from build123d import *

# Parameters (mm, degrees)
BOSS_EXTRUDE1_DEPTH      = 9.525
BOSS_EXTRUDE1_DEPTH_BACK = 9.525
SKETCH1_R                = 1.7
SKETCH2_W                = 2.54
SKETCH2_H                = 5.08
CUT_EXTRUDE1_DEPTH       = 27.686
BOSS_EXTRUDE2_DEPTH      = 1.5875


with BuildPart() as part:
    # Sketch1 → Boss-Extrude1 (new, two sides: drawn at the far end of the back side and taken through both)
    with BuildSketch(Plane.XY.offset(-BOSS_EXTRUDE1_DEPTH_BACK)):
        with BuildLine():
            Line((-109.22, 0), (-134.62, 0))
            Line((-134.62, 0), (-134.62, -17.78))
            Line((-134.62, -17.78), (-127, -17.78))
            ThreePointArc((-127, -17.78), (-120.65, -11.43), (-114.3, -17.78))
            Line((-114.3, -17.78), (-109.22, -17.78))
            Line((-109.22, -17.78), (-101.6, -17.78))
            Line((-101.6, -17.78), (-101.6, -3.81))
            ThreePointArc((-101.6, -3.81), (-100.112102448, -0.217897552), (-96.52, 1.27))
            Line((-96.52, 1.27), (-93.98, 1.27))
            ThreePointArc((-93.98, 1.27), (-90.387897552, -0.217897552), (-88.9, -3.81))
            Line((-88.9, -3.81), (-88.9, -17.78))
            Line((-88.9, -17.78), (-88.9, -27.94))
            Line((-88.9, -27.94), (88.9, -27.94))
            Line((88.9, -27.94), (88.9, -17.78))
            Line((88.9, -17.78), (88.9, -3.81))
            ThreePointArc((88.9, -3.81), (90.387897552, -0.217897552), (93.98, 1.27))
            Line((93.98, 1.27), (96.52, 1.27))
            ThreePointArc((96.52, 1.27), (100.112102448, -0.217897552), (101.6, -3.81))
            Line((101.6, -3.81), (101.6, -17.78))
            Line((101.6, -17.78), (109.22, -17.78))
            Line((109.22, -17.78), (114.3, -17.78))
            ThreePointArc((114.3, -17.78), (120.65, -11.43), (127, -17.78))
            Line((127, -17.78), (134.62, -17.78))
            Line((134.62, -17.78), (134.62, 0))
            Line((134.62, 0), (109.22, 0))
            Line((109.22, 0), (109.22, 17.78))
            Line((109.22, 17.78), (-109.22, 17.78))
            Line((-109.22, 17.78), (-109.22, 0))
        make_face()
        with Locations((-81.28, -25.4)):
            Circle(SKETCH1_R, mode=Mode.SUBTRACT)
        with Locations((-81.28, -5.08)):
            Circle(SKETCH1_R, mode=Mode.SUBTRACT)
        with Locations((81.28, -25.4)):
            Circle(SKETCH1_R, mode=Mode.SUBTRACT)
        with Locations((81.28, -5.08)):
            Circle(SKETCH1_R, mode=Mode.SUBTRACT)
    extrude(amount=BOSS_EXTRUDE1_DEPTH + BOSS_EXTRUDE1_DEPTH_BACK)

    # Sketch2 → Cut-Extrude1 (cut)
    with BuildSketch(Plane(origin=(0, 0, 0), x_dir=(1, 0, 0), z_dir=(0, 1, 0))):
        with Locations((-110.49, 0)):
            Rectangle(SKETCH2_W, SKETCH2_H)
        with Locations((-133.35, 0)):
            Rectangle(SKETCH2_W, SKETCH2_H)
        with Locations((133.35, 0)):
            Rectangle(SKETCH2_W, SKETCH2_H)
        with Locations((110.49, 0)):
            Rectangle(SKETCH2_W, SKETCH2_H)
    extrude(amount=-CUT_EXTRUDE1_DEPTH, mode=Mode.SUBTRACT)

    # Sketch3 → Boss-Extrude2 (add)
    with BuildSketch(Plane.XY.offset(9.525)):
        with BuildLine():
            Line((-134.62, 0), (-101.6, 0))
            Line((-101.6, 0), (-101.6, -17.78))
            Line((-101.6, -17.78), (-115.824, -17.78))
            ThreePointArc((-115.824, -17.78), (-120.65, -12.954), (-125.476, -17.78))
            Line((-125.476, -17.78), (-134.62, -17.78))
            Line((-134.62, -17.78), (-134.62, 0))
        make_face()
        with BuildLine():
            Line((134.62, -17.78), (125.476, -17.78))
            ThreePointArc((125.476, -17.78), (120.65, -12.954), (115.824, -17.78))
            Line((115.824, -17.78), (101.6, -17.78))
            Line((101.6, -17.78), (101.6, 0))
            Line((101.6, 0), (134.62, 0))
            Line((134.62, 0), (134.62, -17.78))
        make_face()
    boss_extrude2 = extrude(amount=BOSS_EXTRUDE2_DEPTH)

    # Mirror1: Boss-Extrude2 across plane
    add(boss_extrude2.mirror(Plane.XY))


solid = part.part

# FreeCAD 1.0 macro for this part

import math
import FreeCAD as App
import Part
import Sketcher
Q = App.Units.Quantity

doc = App.newDocument("Part")
body = doc.addObject("PartDesign::Body", "Body")

# Sketch on XY plane
sketch1 = body.newObject("Sketcher::SketchObject", "Sketch")
sketch1.AttachmentSupport = (doc.getObject("XY_Plane"), [""])
sketch1.MapMode = "FlatFace"
sketch1.addGeometry(Part.LineSegment(App.Vector(-109.2, 0, 0), App.Vector(-134.6, 0, 0)), False)
sketch1.addGeometry(Part.LineSegment(App.Vector(-134.6, 0, 0), App.Vector(-134.6, -17.8, 0)), False)
sketch1.addGeometry(Part.LineSegment(App.Vector(-134.6, -17.8, 0), App.Vector(-127, -17.8, 0)), False)
sketch1.addGeometry(Part.ArcOfCircle(Part.Circle(App.Vector(-120.7, -17.8, 0), App.Vector(0, 0, 1), 6.3), math.radians(0), math.radians(180)), False)
sketch1.addGeometry(Part.LineSegment(App.Vector(-114.3, -17.8, 0), App.Vector(-101.6, -17.8, 0)), False)
sketch1.addGeometry(Part.LineSegment(App.Vector(-101.6, -17.8, 0), App.Vector(-101.6, -3.8, 0)), False)
sketch1.addGeometry(Part.ArcOfCircle(Part.Circle(App.Vector(-96.5, -3.8, 0), App.Vector(0, 0, 1), 5.1), math.radians(90), math.radians(180)), False)
sketch1.addGeometry(Part.LineSegment(App.Vector(-96.5, 1.3, 0), App.Vector(-94, 1.3, 0)), False)
sketch1.addGeometry(Part.ArcOfCircle(Part.Circle(App.Vector(-94, -3.8, 0), App.Vector(0, 0, 1), 5.1), math.radians(0), math.radians(90)), False)
sketch1.addGeometry(Part.LineSegment(App.Vector(-88.9, -3.8, 0), App.Vector(-88.9, -27.9, 0)), False)
sketch1.addGeometry(Part.LineSegment(App.Vector(-88.9, -27.9, 0), App.Vector(88.9, -27.9, 0)), False)
sketch1.addGeometry(Part.LineSegment(App.Vector(88.9, -27.9, 0), App.Vector(88.9, -3.8, 0)), False)
sketch1.addGeometry(Part.ArcOfCircle(Part.Circle(App.Vector(94, -3.8, 0), App.Vector(0, 0, 1), 5.1), math.radians(90), math.radians(180)), False)
sketch1.addGeometry(Part.LineSegment(App.Vector(94, 1.3, 0), App.Vector(96.5, 1.3, 0)), False)
sketch1.addGeometry(Part.ArcOfCircle(Part.Circle(App.Vector(96.5, -3.8, 0), App.Vector(0, 0, 1), 5.1), math.radians(0), math.radians(90)), False)
sketch1.addGeometry(Part.LineSegment(App.Vector(101.6, -3.8, 0), App.Vector(101.6, -17.8, 0)), False)
sketch1.addGeometry(Part.LineSegment(App.Vector(101.6, -17.8, 0), App.Vector(114.3, -17.8, 0)), False)
sketch1.addGeometry(Part.ArcOfCircle(Part.Circle(App.Vector(120.7, -17.8, 0), App.Vector(0, 0, 1), 6.3), math.radians(0), math.radians(180)), False)
sketch1.addGeometry(Part.LineSegment(App.Vector(127, -17.8, 0), App.Vector(134.6, -17.8, 0)), False)
sketch1.addGeometry(Part.LineSegment(App.Vector(134.6, -17.8, 0), App.Vector(134.6, 0, 0)), False)
sketch1.addGeometry(Part.LineSegment(App.Vector(134.6, 0, 0), App.Vector(109.2, 0, 0)), False)
sketch1.addGeometry(Part.LineSegment(App.Vector(109.2, 0, 0), App.Vector(109.2, 17.8, 0)), False)
sketch1.addGeometry(Part.LineSegment(App.Vector(109.2, 17.8, 0), App.Vector(-109.2, 17.8, 0)), False)
sketch1.addGeometry(Part.LineSegment(App.Vector(-109.2, 17.8, 0), App.Vector(-109.2, 0, 0)), False)
sketch1.addGeometry(Part.Circle(App.Vector(-81.3, -25.4, 0), App.Vector(0, 0, 1), 1.7), False)
sketch1.addGeometry(Part.Circle(App.Vector(81.3, -25.4, 0), App.Vector(0, 0, 1), 1.7), False)
sketch1.addGeometry(Part.Circle(App.Vector(-81.3, -5.1, 0), App.Vector(0, 0, 1), 1.7), False)
sketch1.addGeometry(Part.Circle(App.Vector(81.3, -5.1, 0), App.Vector(0, 0, 1), 1.7), False)
sketch1.addConstraint(Sketcher.Constraint("Coincident", 0, 2, 1, 1))
sketch1.addConstraint(Sketcher.Constraint("Coincident", 1, 2, 2, 1))
sketch1.addConstraint(Sketcher.Constraint("Coincident", 2, 2, 3, 2))
sketch1.addConstraint(Sketcher.Constraint("Coincident", 3, 1, 4, 1))
sketch1.addConstraint(Sketcher.Constraint("Coincident", 4, 2, 5, 1))
sketch1.addConstraint(Sketcher.Constraint("Tangent", 5, 2, 6, 2))
sketch1.addConstraint(Sketcher.Constraint("Tangent", 6, 1, 7, 1))
sketch1.addConstraint(Sketcher.Constraint("Tangent", 7, 2, 8, 2))
sketch1.addConstraint(Sketcher.Constraint("Tangent", 8, 1, 9, 1))
sketch1.addConstraint(Sketcher.Constraint("Coincident", 9, 2, 10, 1))
sketch1.addConstraint(Sketcher.Constraint("Coincident", 10, 2, 11, 1))
sketch1.addConstraint(Sketcher.Constraint("Tangent", 11, 2, 12, 2))
sketch1.addConstraint(Sketcher.Constraint("Tangent", 12, 1, 13, 1))
sketch1.addConstraint(Sketcher.Constraint("Tangent", 13, 2, 14, 2))
sketch1.addConstraint(Sketcher.Constraint("Tangent", 14, 1, 15, 1))
sketch1.addConstraint(Sketcher.Constraint("Coincident", 15, 2, 16, 1))
sketch1.addConstraint(Sketcher.Constraint("Coincident", 16, 2, 17, 2))
sketch1.addConstraint(Sketcher.Constraint("Coincident", 17, 1, 18, 1))
sketch1.addConstraint(Sketcher.Constraint("Coincident", 18, 2, 19, 1))
sketch1.addConstraint(Sketcher.Constraint("Coincident", 19, 2, 20, 1))
sketch1.addConstraint(Sketcher.Constraint("Coincident", 20, 2, 21, 1))
sketch1.addConstraint(Sketcher.Constraint("Coincident", 21, 2, 22, 1))
sketch1.addConstraint(Sketcher.Constraint("Coincident", 22, 2, 23, 1))
sketch1.addConstraint(Sketcher.Constraint("Coincident", 23, 2, 0, 1))
sketch1.addConstraint(Sketcher.Constraint("Horizontal", 0))
sketch1.addConstraint(Sketcher.Constraint("Vertical", 1))
sketch1.addConstraint(Sketcher.Constraint("Horizontal", 2))
sketch1.addConstraint(Sketcher.Constraint("Horizontal", 4))
sketch1.addConstraint(Sketcher.Constraint("Vertical", 5))
sketch1.addConstraint(Sketcher.Constraint("Horizontal", 7))
sketch1.addConstraint(Sketcher.Constraint("Vertical", 9))
sketch1.addConstraint(Sketcher.Constraint("Horizontal", 10))
sketch1.addConstraint(Sketcher.Constraint("Vertical", 11))
sketch1.addConstraint(Sketcher.Constraint("Horizontal", 13))
sketch1.addConstraint(Sketcher.Constraint("Vertical", 15))
sketch1.addConstraint(Sketcher.Constraint("Horizontal", 16))
sketch1.addConstraint(Sketcher.Constraint("Horizontal", 18))
sketch1.addConstraint(Sketcher.Constraint("Vertical", 19))
sketch1.addConstraint(Sketcher.Constraint("Horizontal", 20))
sketch1.addConstraint(Sketcher.Constraint("Vertical", 21))
sketch1.addConstraint(Sketcher.Constraint("Horizontal", 22))
sketch1.addConstraint(Sketcher.Constraint("Vertical", 23))
sketch1.addConstraint(Sketcher.Constraint("Equal", 6, 8))
sketch1.addConstraint(Sketcher.Constraint("Equal", 8, 12))
sketch1.addConstraint(Sketcher.Constraint("Equal", 12, 14))
sketch1.addConstraint(Sketcher.Constraint("Equal", 3, 17))
sketch1.addConstraint(Sketcher.Constraint("Equal", 24, 25))
sketch1.addConstraint(Sketcher.Constraint("Equal", 25, 26))
sketch1.addConstraint(Sketcher.Constraint("Equal", 26, 27))
sketch1.addConstraint(Sketcher.Constraint("Symmetric", 0, 2, 19, 2, -1, 1))
sketch1.addConstraint(Sketcher.Constraint("Symmetric", 8, 3, 12, 3, -2))
sketch1.addConstraint(Sketcher.Constraint("Symmetric", 3, 3, 17, 3, -2))
sketch1.addConstraint(Sketcher.Constraint("Symmetric", 24, 3, 25, 3, -2))
sketch1.addConstraint(Sketcher.Constraint("Symmetric", 26, 3, 27, 3, -2))
sketch1.addConstraint(Sketcher.Constraint("Symmetric", 4, 2, 15, 2, -2))
sketch1.addConstraint(Sketcher.Constraint("Symmetric", 20, 2, 23, 2, -2))
sketch1.addConstraint(Sketcher.Constraint("Horizontal", 17, 3, 1, 2))
sketch1.addConstraint(Sketcher.Constraint("Horizontal", 2, 2, 3, 1))
sketch1.addConstraint(Sketcher.Constraint("Horizontal", 16, 2, 17, 1))
sketch1.addConstraint(Sketcher.Constraint("Vertical", 24, 3, 26, 3))
sketch1.addConstraint(Sketcher.Constraint("Equal", 19, 21))
sketch1.addConstraint(Sketcher.Constraint("Radius", 6, Q("0.2 in")))
sketch1.addConstraint(Sketcher.Constraint("DistanceX", 0, 2, 0, 1, Q("1 in")))
sketch1.addConstraint(Sketcher.Constraint("DistanceX", 10, 1, 10, 2, Q("7 in")))
sketch1.addConstraint(Sketcher.Constraint("Radius", 3, Q("0.25 in")))
sketch1.addConstraint(Sketcher.Constraint("DistanceX", 2, 1, 2, 2, Q("0.3 in")))
sketch1.addConstraint(Sketcher.Constraint("DistanceX", 4, 1, 4, 2, Q("0.5 in")))
sketch1.addConstraint(Sketcher.Constraint("DistanceX", 7, 1, 7, 2, Q("0.1 in")))
sketch1.addConstraint(Sketcher.Constraint("DistanceY", 1, 2, 1, 1, Q("0.7 in")))
sketch1.addConstraint(Sketcher.Constraint("DistanceY", 24, 3, -1, 1, Q("1 in")))
sketch1.addConstraint(Sketcher.Constraint("DistanceX", 24, 3, 14, 3, Q("7 in")))
sketch1.addConstraint(Sketcher.Constraint("DistanceY", 5, 1, 5, 2, Q("0.55 in")))
sketch1.addConstraint(Sketcher.Constraint("DistanceY", 9, 2, 9, 1, Q("0.95 in")))
sketch1.addConstraint(Sketcher.Constraint("DistanceY", 26, 3, -1, 1, Q("0.2 in")))
sketch1.addConstraint(Sketcher.Constraint("Diameter", 24, 3.4))
pad1 = body.newObject("PartDesign::Pad", "Pad")
pad1.Profile = sketch1
pad1.Type = "TwoLengths"
pad1.Length = Q("0.375 in")
pad1.Length2 = Q("0.375 in")

# Sketch on XZ plane
sketch2 = body.newObject("Sketcher::SketchObject", "Sketch001")
sketch2.AttachmentSupport = (doc.getObject("XZ_Plane"), [""])
sketch2.MapMode = "FlatFace"
sketch2.addGeometry(Part.LineSegment(App.Vector(-111.8, -2.5, 0), App.Vector(-111.8, 2.5, 0)), False)
sketch2.addGeometry(Part.LineSegment(App.Vector(-111.8, 2.5, 0), App.Vector(-109.2, 2.5, 0)), False)
sketch2.addGeometry(Part.LineSegment(App.Vector(-109.2, 2.5, 0), App.Vector(-109.2, -2.5, 0)), False)
sketch2.addGeometry(Part.LineSegment(App.Vector(-109.2, -2.5, 0), App.Vector(-111.8, -2.5, 0)), False)
sketch2.addGeometry(Part.LineSegment(App.Vector(-134.6, -2.5, 0), App.Vector(-134.6, 2.5, 0)), False)
sketch2.addGeometry(Part.LineSegment(App.Vector(-134.6, 2.5, 0), App.Vector(-132.1, 2.5, 0)), False)
sketch2.addGeometry(Part.LineSegment(App.Vector(-132.1, 2.5, 0), App.Vector(-132.1, -2.5, 0)), False)
sketch2.addGeometry(Part.LineSegment(App.Vector(-132.1, -2.5, 0), App.Vector(-134.6, -2.5, 0)), False)
sketch2.addGeometry(Part.LineSegment(App.Vector(132.1, -2.5, 0), App.Vector(132.1, 2.5, 0)), False)
sketch2.addGeometry(Part.LineSegment(App.Vector(132.1, 2.5, 0), App.Vector(134.6, 2.5, 0)), False)
sketch2.addGeometry(Part.LineSegment(App.Vector(134.6, 2.5, 0), App.Vector(134.6, -2.5, 0)), False)
sketch2.addGeometry(Part.LineSegment(App.Vector(134.6, -2.5, 0), App.Vector(132.1, -2.5, 0)), False)
sketch2.addGeometry(Part.LineSegment(App.Vector(109.2, -2.5, 0), App.Vector(109.2, 2.5, 0)), False)
sketch2.addGeometry(Part.LineSegment(App.Vector(109.2, 2.5, 0), App.Vector(111.8, 2.5, 0)), False)
sketch2.addGeometry(Part.LineSegment(App.Vector(111.8, 2.5, 0), App.Vector(111.8, -2.5, 0)), False)
sketch2.addGeometry(Part.LineSegment(App.Vector(111.8, -2.5, 0), App.Vector(109.2, -2.5, 0)), False)
sketch2.addConstraint(Sketcher.Constraint("Coincident", 0, 2, 1, 1))
sketch2.addConstraint(Sketcher.Constraint("Coincident", 1, 2, 2, 1))
sketch2.addConstraint(Sketcher.Constraint("Coincident", 2, 2, 3, 1))
sketch2.addConstraint(Sketcher.Constraint("Coincident", 3, 2, 0, 1))
sketch2.addConstraint(Sketcher.Constraint("Coincident", 4, 2, 5, 1))
sketch2.addConstraint(Sketcher.Constraint("Coincident", 5, 2, 6, 1))
sketch2.addConstraint(Sketcher.Constraint("Coincident", 6, 2, 7, 1))
sketch2.addConstraint(Sketcher.Constraint("Coincident", 7, 2, 4, 1))
sketch2.addConstraint(Sketcher.Constraint("Coincident", 8, 2, 9, 1))
sketch2.addConstraint(Sketcher.Constraint("Coincident", 9, 2, 10, 1))
sketch2.addConstraint(Sketcher.Constraint("Coincident", 10, 2, 11, 1))
sketch2.addConstraint(Sketcher.Constraint("Coincident", 11, 2, 8, 1))
sketch2.addConstraint(Sketcher.Constraint("Coincident", 12, 2, 13, 1))
sketch2.addConstraint(Sketcher.Constraint("Coincident", 13, 2, 14, 1))
sketch2.addConstraint(Sketcher.Constraint("Coincident", 14, 2, 15, 1))
sketch2.addConstraint(Sketcher.Constraint("Coincident", 15, 2, 12, 1))
sketch2.addConstraint(Sketcher.Constraint("Vertical", 0))
sketch2.addConstraint(Sketcher.Constraint("Horizontal", 1))
sketch2.addConstraint(Sketcher.Constraint("Vertical", 2))
sketch2.addConstraint(Sketcher.Constraint("Horizontal", 3))
sketch2.addConstraint(Sketcher.Constraint("Vertical", 4))
sketch2.addConstraint(Sketcher.Constraint("Horizontal", 5))
sketch2.addConstraint(Sketcher.Constraint("Vertical", 6))
sketch2.addConstraint(Sketcher.Constraint("Horizontal", 7))
sketch2.addConstraint(Sketcher.Constraint("Vertical", 8))
sketch2.addConstraint(Sketcher.Constraint("Horizontal", 9))
sketch2.addConstraint(Sketcher.Constraint("Vertical", 10))
sketch2.addConstraint(Sketcher.Constraint("Horizontal", 11))
sketch2.addConstraint(Sketcher.Constraint("Vertical", 12))
sketch2.addConstraint(Sketcher.Constraint("Horizontal", 13))
sketch2.addConstraint(Sketcher.Constraint("Vertical", 14))
sketch2.addConstraint(Sketcher.Constraint("Horizontal", 15))
sketch2.addConstraint(Sketcher.Constraint("Symmetric", 6, 2, 8, 2, -1, 1))
sketch2.addConstraint(Sketcher.Constraint("Symmetric", 4, 2, 10, 2, -1, 1))
sketch2.addConstraint(Sketcher.Constraint("Symmetric", 2, 2, 12, 2, -1, 1))
sketch2.addConstraint(Sketcher.Constraint("Symmetric", 0, 2, 14, 2, -1, 1))
sketch2.addConstraint(Sketcher.Constraint("Horizontal", 1, 2, 4, 2))
sketch2.addConstraint(Sketcher.Constraint("Horizontal", 3, 2, 6, 2))
sketch2.addConstraint(Sketcher.Constraint("Horizontal", 5, 2, 8, 2))
sketch2.addConstraint(Sketcher.Constraint("Equal", 3, 5))
sketch2.addConstraint(Sketcher.Constraint("DistanceX", 1, 1, 1, 2, Q("0.1 in")))
sketch2.addConstraint(Sketcher.Constraint("DistanceY", 0, 1, 0, 2, Q("0.2 in")))
sketch2.addConstraint(Sketcher.Constraint("DistanceX", 4, 2, 1, 2, Q("1 in")))
sketch2.addConstraint(Sketcher.Constraint("DistanceX", 0, 2, -1, 1, Q("4.4 in")))
pocket1 = body.newObject("PartDesign::Pocket", "Pocket")
pocket1.Profile = sketch2
pocket1.Length = Q("1.09 in")
pocket1.Reversed = True

# Sketch on XY plane
sketch3 = body.newObject("Sketcher::SketchObject", "Sketch002")
sketch3.AttachmentSupport = (doc.getObject("XY_Plane"), [""])
sketch3.MapMode = "FlatFace"
sketch3.AttachmentOffset = App.Placement(App.Vector(0, 0, 0.375 * 25.4), App.Rotation())
sketch3.addGeometry(Part.LineSegment(App.Vector(-101.6, 0, 0), App.Vector(-134.6, 0, 0)), False)
sketch3.addGeometry(Part.LineSegment(App.Vector(-134.6, 0, 0), App.Vector(-134.6, -17.8, 0)), False)
sketch3.addGeometry(Part.LineSegment(App.Vector(-134.6, -17.8, 0), App.Vector(-125.5, -17.8, 0)), False)
sketch3.addGeometry(Part.ArcOfCircle(Part.Circle(App.Vector(-120.7, -17.8, 0), App.Vector(0, 0, 1), 4.8), math.radians(0), math.radians(180)), False)
sketch3.addGeometry(Part.LineSegment(App.Vector(-115.8, -17.8, 0), App.Vector(-101.6, -17.8, 0)), False)
sketch3.addGeometry(Part.LineSegment(App.Vector(-101.6, -17.8, 0), App.Vector(-101.6, 0, 0)), False)
sketch3.addGeometry(Part.LineSegment(App.Vector(125.5, -17.8, 0), App.Vector(134.6, -17.8, 0)), False)
sketch3.addGeometry(Part.LineSegment(App.Vector(134.6, -17.8, 0), App.Vector(134.6, 0, 0)), False)
sketch3.addGeometry(Part.LineSegment(App.Vector(134.6, 0, 0), App.Vector(101.6, 0, 0)), False)
sketch3.addGeometry(Part.LineSegment(App.Vector(101.6, 0, 0), App.Vector(101.6, -17.8, 0)), False)
sketch3.addGeometry(Part.LineSegment(App.Vector(101.6, -17.8, 0), App.Vector(115.8, -17.8, 0)), False)
sketch3.addGeometry(Part.ArcOfCircle(Part.Circle(App.Vector(120.7, -17.8, 0), App.Vector(0, 0, 1), 4.8), math.radians(0), math.radians(180)), False)
sketch3.addConstraint(Sketcher.Constraint("Coincident", 0, 2, 1, 1))
sketch3.addConstraint(Sketcher.Constraint("Coincident", 1, 2, 2, 1))
sketch3.addConstraint(Sketcher.Constraint("Coincident", 2, 2, 3, 2))
sketch3.addConstraint(Sketcher.Constraint("Coincident", 3, 1, 4, 1))
sketch3.addConstraint(Sketcher.Constraint("Coincident", 4, 2, 5, 1))
sketch3.addConstraint(Sketcher.Constraint("Coincident", 5, 2, 0, 1))
sketch3.addConstraint(Sketcher.Constraint("Coincident", 6, 2, 7, 1))
sketch3.addConstraint(Sketcher.Constraint("Coincident", 7, 2, 8, 1))
sketch3.addConstraint(Sketcher.Constraint("Coincident", 8, 2, 9, 1))
sketch3.addConstraint(Sketcher.Constraint("Coincident", 9, 2, 10, 1))
sketch3.addConstraint(Sketcher.Constraint("Coincident", 10, 2, 11, 2))
sketch3.addConstraint(Sketcher.Constraint("Coincident", 11, 1, 6, 1))
sketch3.addConstraint(Sketcher.Constraint("Horizontal", 0))
sketch3.addConstraint(Sketcher.Constraint("Vertical", 1))
sketch3.addConstraint(Sketcher.Constraint("Horizontal", 2))
sketch3.addConstraint(Sketcher.Constraint("Horizontal", 4))
sketch3.addConstraint(Sketcher.Constraint("Vertical", 5))
sketch3.addConstraint(Sketcher.Constraint("Horizontal", 6))
sketch3.addConstraint(Sketcher.Constraint("Vertical", 7))
sketch3.addConstraint(Sketcher.Constraint("Horizontal", 8))
sketch3.addConstraint(Sketcher.Constraint("Vertical", 9))
sketch3.addConstraint(Sketcher.Constraint("Horizontal", 10))
sketch3.addConstraint(Sketcher.Constraint("Equal", 3, 11))
sketch3.addConstraint(Sketcher.Constraint("Symmetric", 0, 2, 7, 2, -1, 1))
sketch3.addConstraint(Sketcher.Constraint("Symmetric", 3, 3, 11, 3, -2))
sketch3.addConstraint(Sketcher.Constraint("Symmetric", 5, 2, 8, 2, -2))
sketch3.addConstraint(Sketcher.Constraint("Horizontal", 11, 3, 1, 2))
sketch3.addConstraint(Sketcher.Constraint("Horizontal", 2, 2, 3, 1))
sketch3.addConstraint(Sketcher.Constraint("Horizontal", 4, 2, 6, 2))
sketch3.addConstraint(Sketcher.Constraint("Horizontal", 6, 2, 9, 2))
sketch3.addConstraint(Sketcher.Constraint("Radius", 3, Q("0.19 in")))
sketch3.addConstraint(Sketcher.Constraint("DistanceX", 0, 2, 0, 1, Q("1.3 in")))
sketch3.addConstraint(Sketcher.Constraint("DistanceY", 1, 2, 1, 1, Q("0.7 in")))
sketch3.addConstraint(Sketcher.Constraint("DistanceX", 4, 2, -1, 1, Q("4 in")))
sketch3.addConstraint(Sketcher.Constraint("DistanceX", 2, 1, 2, 2, Q("0.36 in")))
pad2 = body.newObject("PartDesign::Pad", "Pad001")
pad2.Profile = sketch3
pad2.Length = Q("0.0625 in")
doc.recompute()

mirrored = body.newObject("PartDesign::Mirrored", "Mirrored")
mirrored.Originals = [pad2]
mirrored.MirrorPlane = (doc.getObject("XY_Plane"), [""])
body.Tip = mirrored

doc.recompute()
